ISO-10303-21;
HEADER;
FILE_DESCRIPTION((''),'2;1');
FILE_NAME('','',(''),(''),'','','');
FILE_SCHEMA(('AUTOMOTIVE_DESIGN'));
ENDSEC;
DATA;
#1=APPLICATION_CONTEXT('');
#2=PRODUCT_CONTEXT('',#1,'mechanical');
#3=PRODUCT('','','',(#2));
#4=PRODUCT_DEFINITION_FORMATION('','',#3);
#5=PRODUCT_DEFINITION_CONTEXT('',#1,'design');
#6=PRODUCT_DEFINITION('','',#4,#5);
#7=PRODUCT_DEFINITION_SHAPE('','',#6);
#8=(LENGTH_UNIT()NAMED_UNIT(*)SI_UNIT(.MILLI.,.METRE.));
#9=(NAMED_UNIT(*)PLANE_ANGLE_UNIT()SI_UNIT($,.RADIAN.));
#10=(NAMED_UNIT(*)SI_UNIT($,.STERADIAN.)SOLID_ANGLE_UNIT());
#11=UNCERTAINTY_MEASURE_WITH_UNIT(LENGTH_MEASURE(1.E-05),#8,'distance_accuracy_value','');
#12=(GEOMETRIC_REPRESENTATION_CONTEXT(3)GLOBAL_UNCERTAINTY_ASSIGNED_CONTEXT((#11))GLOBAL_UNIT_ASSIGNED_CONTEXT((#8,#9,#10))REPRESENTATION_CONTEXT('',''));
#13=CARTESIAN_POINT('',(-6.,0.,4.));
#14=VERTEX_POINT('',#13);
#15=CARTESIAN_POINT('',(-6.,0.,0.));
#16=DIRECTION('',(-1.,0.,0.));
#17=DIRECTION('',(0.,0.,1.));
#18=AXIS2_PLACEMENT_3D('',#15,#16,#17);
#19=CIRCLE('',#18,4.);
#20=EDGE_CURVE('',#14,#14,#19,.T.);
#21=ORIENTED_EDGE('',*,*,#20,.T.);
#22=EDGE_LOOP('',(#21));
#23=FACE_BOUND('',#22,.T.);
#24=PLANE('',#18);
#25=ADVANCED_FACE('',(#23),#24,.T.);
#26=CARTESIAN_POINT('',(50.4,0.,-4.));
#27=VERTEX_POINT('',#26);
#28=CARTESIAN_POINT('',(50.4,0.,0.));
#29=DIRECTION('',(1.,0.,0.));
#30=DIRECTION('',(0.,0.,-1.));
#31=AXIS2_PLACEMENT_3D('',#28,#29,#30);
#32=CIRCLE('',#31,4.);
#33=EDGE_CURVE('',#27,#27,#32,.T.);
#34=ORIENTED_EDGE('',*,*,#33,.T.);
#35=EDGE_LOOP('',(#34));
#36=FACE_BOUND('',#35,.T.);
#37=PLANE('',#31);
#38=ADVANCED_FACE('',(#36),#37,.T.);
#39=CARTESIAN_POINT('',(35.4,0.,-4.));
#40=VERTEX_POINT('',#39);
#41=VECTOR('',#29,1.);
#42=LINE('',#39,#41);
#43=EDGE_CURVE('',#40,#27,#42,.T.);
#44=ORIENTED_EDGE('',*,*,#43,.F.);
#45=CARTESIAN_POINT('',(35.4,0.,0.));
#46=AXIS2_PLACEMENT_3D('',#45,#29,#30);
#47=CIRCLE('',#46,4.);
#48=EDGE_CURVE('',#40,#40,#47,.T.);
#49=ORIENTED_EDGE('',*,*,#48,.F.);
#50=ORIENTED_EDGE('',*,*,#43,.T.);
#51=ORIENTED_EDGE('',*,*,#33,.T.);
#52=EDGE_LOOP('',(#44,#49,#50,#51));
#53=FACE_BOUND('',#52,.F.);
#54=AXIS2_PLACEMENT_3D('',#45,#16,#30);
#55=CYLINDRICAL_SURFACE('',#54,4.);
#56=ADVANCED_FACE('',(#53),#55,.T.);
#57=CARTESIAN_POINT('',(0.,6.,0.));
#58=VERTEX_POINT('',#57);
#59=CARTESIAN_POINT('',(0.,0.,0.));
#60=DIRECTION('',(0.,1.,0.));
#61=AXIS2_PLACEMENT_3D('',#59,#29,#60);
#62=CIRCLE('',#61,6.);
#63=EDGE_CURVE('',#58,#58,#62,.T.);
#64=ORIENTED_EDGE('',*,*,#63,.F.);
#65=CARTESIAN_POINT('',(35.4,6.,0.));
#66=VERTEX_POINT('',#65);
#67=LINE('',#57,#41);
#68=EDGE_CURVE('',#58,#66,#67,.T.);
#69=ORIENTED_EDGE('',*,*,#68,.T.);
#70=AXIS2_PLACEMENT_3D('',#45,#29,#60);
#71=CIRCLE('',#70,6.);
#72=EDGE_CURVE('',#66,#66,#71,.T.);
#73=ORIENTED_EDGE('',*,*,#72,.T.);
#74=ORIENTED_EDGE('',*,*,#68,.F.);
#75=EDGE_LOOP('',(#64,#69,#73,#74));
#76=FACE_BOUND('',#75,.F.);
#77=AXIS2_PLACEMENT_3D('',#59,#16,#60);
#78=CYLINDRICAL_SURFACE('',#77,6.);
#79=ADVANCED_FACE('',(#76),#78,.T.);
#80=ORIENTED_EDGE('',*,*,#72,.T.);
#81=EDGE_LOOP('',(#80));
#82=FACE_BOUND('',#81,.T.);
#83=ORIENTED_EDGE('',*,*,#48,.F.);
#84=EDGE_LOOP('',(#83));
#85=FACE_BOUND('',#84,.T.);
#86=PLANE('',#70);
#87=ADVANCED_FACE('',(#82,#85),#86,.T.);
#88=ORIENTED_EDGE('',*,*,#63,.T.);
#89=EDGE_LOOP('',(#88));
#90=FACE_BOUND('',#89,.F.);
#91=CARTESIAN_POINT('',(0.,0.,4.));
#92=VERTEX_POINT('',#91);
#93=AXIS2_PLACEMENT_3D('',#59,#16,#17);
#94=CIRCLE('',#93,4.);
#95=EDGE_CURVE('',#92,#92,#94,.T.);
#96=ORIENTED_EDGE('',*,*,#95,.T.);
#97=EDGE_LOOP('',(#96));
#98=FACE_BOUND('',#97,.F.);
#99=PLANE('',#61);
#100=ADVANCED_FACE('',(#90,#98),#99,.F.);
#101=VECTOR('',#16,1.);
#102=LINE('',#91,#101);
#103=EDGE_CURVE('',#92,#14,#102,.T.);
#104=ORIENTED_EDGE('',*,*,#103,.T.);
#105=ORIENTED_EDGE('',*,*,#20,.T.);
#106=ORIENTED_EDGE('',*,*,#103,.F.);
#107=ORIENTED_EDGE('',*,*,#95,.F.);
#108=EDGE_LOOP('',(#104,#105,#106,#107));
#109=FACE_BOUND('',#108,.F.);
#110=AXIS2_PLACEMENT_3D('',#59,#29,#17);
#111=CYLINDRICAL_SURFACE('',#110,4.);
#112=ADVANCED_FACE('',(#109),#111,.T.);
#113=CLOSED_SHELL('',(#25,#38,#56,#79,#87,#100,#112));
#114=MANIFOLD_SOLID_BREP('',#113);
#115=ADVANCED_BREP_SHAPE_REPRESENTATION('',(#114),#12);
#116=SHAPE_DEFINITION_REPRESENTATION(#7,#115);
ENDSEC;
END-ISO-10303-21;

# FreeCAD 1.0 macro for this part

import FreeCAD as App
import Part
import Sketcher
from FreeCAD import Vector

doc = App.newDocument("Part")
body = doc.addObject("PartDesign::Body", "Body")

sketch1 = body.newObject("Sketcher::SketchObject", "Sketch")
sketch1.AttachmentSupport = (doc.getObject("YZ_Plane"), [""])
sketch1.MapMode = "FlatFace"
sketch1.addGeometry(Part.Circle(Vector(0, 0, 0), Vector(0, 0, 1), 6), False)
sketch1.addConstraint(Sketcher.Constraint("Coincident", 0, 3, -1, 1))
sketch1.addConstraint(Sketcher.Constraint("Diameter", 0, 12.0))
pad1 = body.newObject("PartDesign::Pad", "Pad")
pad1.Profile = sketch1
pad1.Length = 35.4

sketch2 = body.newObject("Sketcher::SketchObject", "Sketch001")
sketch2.AttachmentSupport = (doc.getObject("YZ_Plane"), [""])
sketch2.MapMode = "FlatFace"
sketch2.addGeometry(Part.Circle(Vector(0, 0, 0), Vector(0, 0, 1), 4), False)
sketch2.addConstraint(Sketcher.Constraint("Coincident", 0, 3, -1, 1))
sketch2.addConstraint(Sketcher.Constraint("Diameter", 0, 8.0))
pad2 = body.newObject("PartDesign::Pad", "Pad001")
pad2.Profile = sketch2
pad2.Length = 6
pad2.Reversed = True

sketch3 = body.newObject("Sketcher::SketchObject", "Sketch002")
sketch3.AttachmentSupport = (doc.getObject("YZ_Plane"), [""])
sketch3.MapMode = "FlatFace"
sketch3.AttachmentOffset = App.Placement(Vector(0, 0, 35.4), App.Rotation())
sketch3.addGeometry(Part.Circle(Vector(0, 0, 0), Vector(0, 0, 1), 4), False)
sketch3.addConstraint(Sketcher.Constraint("Coincident", 0, 3, -1, 1))
sketch3.addConstraint(Sketcher.Constraint("Diameter", 0, 8.0))
pad3 = body.newObject("PartDesign::Pad", "Pad002")
pad3.Profile = sketch3
pad3.Length = 15

doc.recompute()
